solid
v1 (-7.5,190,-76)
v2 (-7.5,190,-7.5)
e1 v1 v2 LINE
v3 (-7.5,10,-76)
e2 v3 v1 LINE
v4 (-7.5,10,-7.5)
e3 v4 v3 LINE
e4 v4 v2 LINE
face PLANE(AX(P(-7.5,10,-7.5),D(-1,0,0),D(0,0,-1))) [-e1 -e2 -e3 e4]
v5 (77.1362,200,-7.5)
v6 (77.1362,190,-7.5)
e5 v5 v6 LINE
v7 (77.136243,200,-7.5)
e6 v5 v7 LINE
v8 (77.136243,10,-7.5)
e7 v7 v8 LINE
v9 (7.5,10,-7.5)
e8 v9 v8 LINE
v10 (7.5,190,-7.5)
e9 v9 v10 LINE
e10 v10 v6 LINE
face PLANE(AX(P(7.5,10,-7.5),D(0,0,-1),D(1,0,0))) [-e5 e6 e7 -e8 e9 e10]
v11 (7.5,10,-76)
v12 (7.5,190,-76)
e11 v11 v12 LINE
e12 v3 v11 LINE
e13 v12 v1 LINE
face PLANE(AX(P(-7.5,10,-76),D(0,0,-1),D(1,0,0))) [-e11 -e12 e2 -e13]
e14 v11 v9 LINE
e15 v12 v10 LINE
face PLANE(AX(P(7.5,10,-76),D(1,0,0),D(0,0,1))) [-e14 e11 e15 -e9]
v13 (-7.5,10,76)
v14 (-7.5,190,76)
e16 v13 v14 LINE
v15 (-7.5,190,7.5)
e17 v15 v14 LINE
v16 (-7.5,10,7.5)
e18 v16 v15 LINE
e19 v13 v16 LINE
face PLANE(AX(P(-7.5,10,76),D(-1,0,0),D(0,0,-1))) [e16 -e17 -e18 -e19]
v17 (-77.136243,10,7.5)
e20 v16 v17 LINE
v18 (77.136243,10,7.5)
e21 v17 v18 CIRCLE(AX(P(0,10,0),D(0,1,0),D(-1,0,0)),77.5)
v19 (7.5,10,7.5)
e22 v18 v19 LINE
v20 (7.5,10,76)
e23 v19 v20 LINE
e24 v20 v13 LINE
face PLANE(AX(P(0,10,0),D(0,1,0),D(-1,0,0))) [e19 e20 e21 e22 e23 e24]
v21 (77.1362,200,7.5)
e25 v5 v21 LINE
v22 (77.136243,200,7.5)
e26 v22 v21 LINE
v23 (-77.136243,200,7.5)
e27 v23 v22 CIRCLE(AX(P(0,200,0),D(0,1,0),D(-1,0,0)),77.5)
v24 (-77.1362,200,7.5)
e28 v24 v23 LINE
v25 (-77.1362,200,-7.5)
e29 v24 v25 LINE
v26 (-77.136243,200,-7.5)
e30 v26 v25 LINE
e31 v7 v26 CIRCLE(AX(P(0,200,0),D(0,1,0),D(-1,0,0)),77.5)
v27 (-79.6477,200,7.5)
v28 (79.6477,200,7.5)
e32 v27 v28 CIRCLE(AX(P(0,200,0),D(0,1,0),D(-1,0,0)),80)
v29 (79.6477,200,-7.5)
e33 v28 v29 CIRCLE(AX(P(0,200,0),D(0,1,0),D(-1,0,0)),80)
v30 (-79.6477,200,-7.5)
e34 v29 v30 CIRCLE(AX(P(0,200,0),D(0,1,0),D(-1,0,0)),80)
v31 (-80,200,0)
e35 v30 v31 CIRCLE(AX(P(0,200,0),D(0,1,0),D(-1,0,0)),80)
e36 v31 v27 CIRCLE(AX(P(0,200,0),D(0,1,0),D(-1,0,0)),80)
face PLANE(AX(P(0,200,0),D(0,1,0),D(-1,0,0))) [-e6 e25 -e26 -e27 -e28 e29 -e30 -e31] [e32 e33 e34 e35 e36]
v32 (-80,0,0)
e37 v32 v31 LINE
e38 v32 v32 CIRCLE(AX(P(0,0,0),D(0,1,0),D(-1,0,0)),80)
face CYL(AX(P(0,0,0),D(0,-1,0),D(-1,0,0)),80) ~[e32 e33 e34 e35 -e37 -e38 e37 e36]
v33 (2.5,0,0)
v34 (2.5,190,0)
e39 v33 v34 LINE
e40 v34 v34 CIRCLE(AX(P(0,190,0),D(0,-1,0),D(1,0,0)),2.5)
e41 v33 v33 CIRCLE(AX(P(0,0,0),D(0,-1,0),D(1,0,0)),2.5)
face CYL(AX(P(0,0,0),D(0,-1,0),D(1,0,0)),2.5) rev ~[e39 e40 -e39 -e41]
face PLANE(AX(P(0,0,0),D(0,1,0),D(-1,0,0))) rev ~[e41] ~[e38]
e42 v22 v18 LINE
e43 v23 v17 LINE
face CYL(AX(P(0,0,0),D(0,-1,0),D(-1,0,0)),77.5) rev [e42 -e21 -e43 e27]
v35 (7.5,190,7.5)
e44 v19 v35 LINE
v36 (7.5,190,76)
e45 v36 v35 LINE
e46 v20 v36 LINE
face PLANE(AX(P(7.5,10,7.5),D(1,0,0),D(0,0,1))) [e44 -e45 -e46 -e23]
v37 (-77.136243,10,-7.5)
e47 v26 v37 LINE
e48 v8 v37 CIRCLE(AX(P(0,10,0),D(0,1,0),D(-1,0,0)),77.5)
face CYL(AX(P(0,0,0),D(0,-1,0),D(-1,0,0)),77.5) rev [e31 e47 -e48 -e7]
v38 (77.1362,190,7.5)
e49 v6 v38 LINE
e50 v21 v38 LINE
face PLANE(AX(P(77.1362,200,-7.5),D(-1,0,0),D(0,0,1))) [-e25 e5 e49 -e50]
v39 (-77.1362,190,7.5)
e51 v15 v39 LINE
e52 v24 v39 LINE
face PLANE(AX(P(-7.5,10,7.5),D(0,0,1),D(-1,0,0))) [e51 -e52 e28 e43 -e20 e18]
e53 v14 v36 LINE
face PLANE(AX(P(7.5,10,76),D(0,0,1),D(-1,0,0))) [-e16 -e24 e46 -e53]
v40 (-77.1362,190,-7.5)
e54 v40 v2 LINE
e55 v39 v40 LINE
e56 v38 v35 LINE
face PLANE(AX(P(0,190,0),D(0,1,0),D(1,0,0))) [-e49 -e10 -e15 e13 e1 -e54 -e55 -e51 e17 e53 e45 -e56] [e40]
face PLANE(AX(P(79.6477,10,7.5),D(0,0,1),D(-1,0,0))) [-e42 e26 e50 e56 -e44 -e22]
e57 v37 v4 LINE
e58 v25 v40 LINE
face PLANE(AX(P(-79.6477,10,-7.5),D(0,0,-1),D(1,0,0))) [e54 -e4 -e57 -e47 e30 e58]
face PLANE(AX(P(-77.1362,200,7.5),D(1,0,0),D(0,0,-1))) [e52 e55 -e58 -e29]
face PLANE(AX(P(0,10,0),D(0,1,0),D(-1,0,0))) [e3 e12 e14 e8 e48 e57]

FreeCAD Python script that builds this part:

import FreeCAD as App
import Part
import Sketcher

doc = App.newDocument("Part")
body = doc.addObject("PartDesign::Body", "Body")

# Sketch on XZ plane
sketch1 = body.newObject("Sketcher::SketchObject", "Sketch")
sketch1.AttachmentSupport = (doc.getObject("XZ_Plane"), [""])
sketch1.MapMode = "FlatFace"
sketch1.addGeometry([
    Part.Circle(App.Vector(0, 0, 0), App.Vector(0, 0, 1), 80),
    Part.Circle(App.Vector(0, 0, 0), App.Vector(0, 0, 1), 78),
], False)
sketch1.addConstraint([
    Sketcher.Constraint("Coincident", 0, 3, -1, 1),
    Sketcher.Constraint("Coincident", 1, 3, -1, 1),
    Sketcher.Constraint("Diameter", 0, 160.0),
    Sketcher.Constraint("Diameter", 1, 155.0),
])
pad1 = body.newObject("PartDesign::Pad", "Pad")
pad1.Profile = sketch1
pad1.Length = 200
pad1.Reversed = True

# Sketch on XZ plane
sketch2 = body.newObject("Sketcher::SketchObject", "Sketch001")
sketch2.AttachmentSupport = (doc.getObject("XZ_Plane"), [""])
sketch2.MapMode = "FlatFace"
sketch2.addGeometry(Part.Circle(App.Vector(0, 0, 0), App.Vector(0, 0, 1), 78), False)
sketch2.addConstraint([
    Sketcher.Constraint("Coincident", 0, 3, -1, 1),
    Sketcher.Constraint("Diameter", 0, 155.0),
])
pad2 = body.newObject("PartDesign::Pad", "Pad001")
pad2.Profile = sketch2
pad2.Length = 10
pad2.Reversed = True

# Sketch on XZ plane
sketch3 = body.newObject("Sketcher::SketchObject", "Sketch002")
sketch3.AttachmentSupport = (doc.getObject("XZ_Plane"), [""])
sketch3.MapMode = "FlatFace"
sketch3.AttachmentOffset = App.Placement(App.Vector(0, 0, -10), App.Rotation())
sketch3.addGeometry([
    Part.LineSegment(App.Vector(80, 8, 0), App.Vector(80, -8, 0)),  # 0
    Part.LineSegment(App.Vector(80, -8, 0), App.Vector(8, -8, 0)),  # 1
    Part.LineSegment(App.Vector(8, -8, 0), App.Vector(8, -76, 0)),  # 2
    Part.LineSegment(App.Vector(8, -76, 0), App.Vector(-8, -76, 0)),  # 3
    Part.LineSegment(App.Vector(-8, -76, 0), App.Vector(-8, -8, 0)),  # 4
    Part.LineSegment(App.Vector(-8, -8, 0), App.Vector(-80, -8, 0)),  # 5
    Part.LineSegment(App.Vector(-80, -8, 0), App.Vector(-80, 8, 0)),  # 6
    Part.LineSegment(App.Vector(-80, 8, 0), App.Vector(-8, 8, 0)),  # 7
    Part.LineSegment(App.Vector(-8, 8, 0), App.Vector(-8, 76, 0)),  # 8
    Part.LineSegment(App.Vector(-8, 76, 0), App.Vector(8, 76, 0)),  # 9
    Part.LineSegment(App.Vector(8, 76, 0), App.Vector(8, 8, 0)),  # 10
    Part.LineSegment(App.Vector(8, 8, 0), App.Vector(80, 8, 0)),  # 11
], False)
sketch3.addConstraint([
    Sketcher.Constraint("Coincident", 0, 2, 1, 1),
    Sketcher.Constraint("Coincident", 1, 2, 2, 1),
    Sketcher.Constraint("Coincident", 2, 2, 3, 1),
    Sketcher.Constraint("Coincident", 3, 2, 4, 1),
    Sketcher.Constraint("Coincident", 4, 2, 5, 1),
    Sketcher.Constraint("Coincident", 5, 2, 6, 1),
    Sketcher.Constraint("Coincident", 6, 2, 7, 1),
    Sketcher.Constraint("Coincident", 7, 2, 8, 1),
    Sketcher.Constraint("Coincident", 8, 2, 9, 1),
    Sketcher.Constraint("Coincident", 9, 2, 10, 1),
    Sketcher.Constraint("Coincident", 10, 2, 11, 1),
    Sketcher.Constraint("Coincident", 11, 2, 0, 1),
    Sketcher.Constraint("Vertical", 0),
    Sketcher.Constraint("Horizontal", 1),
    Sketcher.Constraint("Vertical", 2),
    Sketcher.Constraint("Horizontal", 3),
    Sketcher.Constraint("Vertical", 4),
    Sketcher.Constraint("Horizontal", 5),
    Sketcher.Constraint("Vertical", 6),
    Sketcher.Constraint("Horizontal", 7),
    Sketcher.Constraint("Vertical", 8),
    Sketcher.Constraint("Horizontal", 9),
    Sketcher.Constraint("Vertical", 10),
    Sketcher.Constraint("Horizontal", 11),
    Sketcher.Constraint("Symmetric", 0, 2, 6, 2, -1, 1),
    Sketcher.Constraint("Symmetric", 2, 2, 8, 2, -1, 1),
    Sketcher.Constraint("Symmetric", 4, 2, 10, 2, -1, 1),
    Sketcher.Constraint("Symmetric", 1, 2, 4, 2, -2),
    Sketcher.Constraint("Equal", 9, 0),
    Sketcher.Constraint("DistanceX", 3, 2, 3, 1, 15.0),
    Sketcher.Constraint("DistanceY", 2, 2, 2, 1, 68.5),
    Sketcher.Constraint("DistanceX", 1, 2, 1, 1, 72.1477),
])
pad3 = body.newObject("PartDesign::Pad", "Pad002")
pad3.Profile = sketch3
pad3.Length = 190
pad3.Reversed = True

# Sketch on XZ plane
sketch4 = body.newObject("Sketcher::SketchObject", "Sketch003")
sketch4.AttachmentSupport = (doc.getObject("XZ_Plane"), [""])
sketch4.MapMode = "FlatFace"
sketch4.addGeometry(Part.Circle(App.Vector(0, 0, 0), App.Vector(0, 0, 1), 2.5), False)
sketch4.addConstraint([
    Sketcher.Constraint("Coincident", 0, 3, -1, 1),
    Sketcher.Constraint("Diameter", 0, 5.0),
])
pocket1 = body.newObject("PartDesign::Pocket", "Pocket")
pocket1.Profile = sketch4
pocket1.Length = 190

# Sketch on XZ plane
sketch5 = body.newObject("Sketcher::SketchObject", "Sketch004")
sketch5.AttachmentSupport = (doc.getObject("XZ_Plane"), [""])
sketch5.MapMode = "FlatFace"
sketch5.AttachmentOffset = App.Placement(App.Vector(0, 0, -200), App.Rotation())
sketch5.addGeometry([
    Part.LineSegment(App.Vector(8, -8, 0), App.Vector(8, -76, 0)),  # 0
    Part.LineSegment(App.Vector(8, -76, 0), App.Vector(-8, -76, 0)),  # 1
    Part.LineSegment(App.Vector(-8, -76, 0), App.Vector(-8, -8, 0)),  # 2
    Part.LineSegment(App.Vector(-8, -8, 0), App.Vector(-77, -8, 0)),  # 3
    Part.LineSegment(App.Vector(-77, -8, 0), App.Vector(-77, 8, 0)),  # 4
    Part.LineSegment(App.Vector(-77, 8, 0), App.Vector(-8, 8, 0)),  # 5
    Part.LineSegment(App.Vector(-8, 8, 0), App.Vector(-8, 76, 0)),  # 6
    Part.LineSegment(App.Vector(-8, 76, 0), App.Vector(8, 76, 0)),  # 7
    Part.LineSegment(App.Vector(8, 76, 0), App.Vector(8, 8, 0)),  # 8
    Part.LineSegment(App.Vector(8, 8, 0), App.Vector(77, 8, 0)),  # 9
    Part.LineSegment(App.Vector(77, 8, 0), App.Vector(77, -8, 0)),  # 10
    Part.LineSegment(App.Vector(77, -8, 0), App.Vector(8, -8, 0)),  # 11
], False)
sketch5.addConstraint([
    Sketcher.Constraint("Coincident", 0, 2, 1, 1),
    Sketcher.Constraint("Coincident", 1, 2, 2, 1),
    Sketcher.Constraint("Coincident", 2, 2, 3, 1),
    Sketcher.Constraint("Coincident", 3, 2, 4, 1),
    Sketcher.Constraint("Coincident", 4, 2, 5, 1),
    Sketcher.Constraint("Coincident", 5, 2, 6, 1),
    Sketcher.Constraint("Coincident", 6, 2, 7, 1),
    Sketcher.Constraint("Coincident", 7, 2, 8, 1),
    Sketcher.Constraint("Coincident", 8, 2, 9, 1),
    Sketcher.Constraint("Coincident", 9, 2, 10, 1),
    Sketcher.Constraint("Coincident", 10, 2, 11, 1),
    Sketcher.Constraint("Coincident", 11, 2, 0, 1),
    Sketcher.Constraint("Vertical", 0),
    Sketcher.Constraint("Horizontal", 1),
    Sketcher.Constraint("Vertical", 2),
    Sketcher.Constraint("Horizontal", 3),
    Sketcher.Constraint("Vertical", 4),
    Sketcher.Constraint("Horizontal", 5),
    Sketcher.Constraint("Vertical", 6),
    Sketcher.Constraint("Horizontal", 7),
    Sketcher.Constraint("Vertical", 8),
    Sketcher.Constraint("Horizontal", 9),
    Sketcher.Constraint("Vertical", 10),
    Sketcher.Constraint("Horizontal", 11),
    Sketcher.Constraint("Symmetric", 0, 2, 6, 2, -1, 1),
    Sketcher.Constraint("Symmetric", 2, 2, 8, 2, -1, 1),
    Sketcher.Constraint("Symmetric", 4, 2, 10, 2, -1, 1),
    Sketcher.Constraint("Symmetric", 5, 2, 8, 2, -2),
    Sketcher.Constraint("Equal", 7, 4),
    Sketcher.Constraint("DistanceX", 1, 2, 1, 1, 15.0),
    Sketcher.Constraint("DistanceY", 0, 2, 0, 1, 68.5),
    Sketcher.Constraint("DistanceX", 3, 2, 3, 1, 69.6362),
])
pocket2 = body.newObject("PartDesign::Pocket", "Pocket001")
pocket2.Profile = sketch5
pocket2.Length = 10
pocket2.Reversed = True

doc.recompute()
